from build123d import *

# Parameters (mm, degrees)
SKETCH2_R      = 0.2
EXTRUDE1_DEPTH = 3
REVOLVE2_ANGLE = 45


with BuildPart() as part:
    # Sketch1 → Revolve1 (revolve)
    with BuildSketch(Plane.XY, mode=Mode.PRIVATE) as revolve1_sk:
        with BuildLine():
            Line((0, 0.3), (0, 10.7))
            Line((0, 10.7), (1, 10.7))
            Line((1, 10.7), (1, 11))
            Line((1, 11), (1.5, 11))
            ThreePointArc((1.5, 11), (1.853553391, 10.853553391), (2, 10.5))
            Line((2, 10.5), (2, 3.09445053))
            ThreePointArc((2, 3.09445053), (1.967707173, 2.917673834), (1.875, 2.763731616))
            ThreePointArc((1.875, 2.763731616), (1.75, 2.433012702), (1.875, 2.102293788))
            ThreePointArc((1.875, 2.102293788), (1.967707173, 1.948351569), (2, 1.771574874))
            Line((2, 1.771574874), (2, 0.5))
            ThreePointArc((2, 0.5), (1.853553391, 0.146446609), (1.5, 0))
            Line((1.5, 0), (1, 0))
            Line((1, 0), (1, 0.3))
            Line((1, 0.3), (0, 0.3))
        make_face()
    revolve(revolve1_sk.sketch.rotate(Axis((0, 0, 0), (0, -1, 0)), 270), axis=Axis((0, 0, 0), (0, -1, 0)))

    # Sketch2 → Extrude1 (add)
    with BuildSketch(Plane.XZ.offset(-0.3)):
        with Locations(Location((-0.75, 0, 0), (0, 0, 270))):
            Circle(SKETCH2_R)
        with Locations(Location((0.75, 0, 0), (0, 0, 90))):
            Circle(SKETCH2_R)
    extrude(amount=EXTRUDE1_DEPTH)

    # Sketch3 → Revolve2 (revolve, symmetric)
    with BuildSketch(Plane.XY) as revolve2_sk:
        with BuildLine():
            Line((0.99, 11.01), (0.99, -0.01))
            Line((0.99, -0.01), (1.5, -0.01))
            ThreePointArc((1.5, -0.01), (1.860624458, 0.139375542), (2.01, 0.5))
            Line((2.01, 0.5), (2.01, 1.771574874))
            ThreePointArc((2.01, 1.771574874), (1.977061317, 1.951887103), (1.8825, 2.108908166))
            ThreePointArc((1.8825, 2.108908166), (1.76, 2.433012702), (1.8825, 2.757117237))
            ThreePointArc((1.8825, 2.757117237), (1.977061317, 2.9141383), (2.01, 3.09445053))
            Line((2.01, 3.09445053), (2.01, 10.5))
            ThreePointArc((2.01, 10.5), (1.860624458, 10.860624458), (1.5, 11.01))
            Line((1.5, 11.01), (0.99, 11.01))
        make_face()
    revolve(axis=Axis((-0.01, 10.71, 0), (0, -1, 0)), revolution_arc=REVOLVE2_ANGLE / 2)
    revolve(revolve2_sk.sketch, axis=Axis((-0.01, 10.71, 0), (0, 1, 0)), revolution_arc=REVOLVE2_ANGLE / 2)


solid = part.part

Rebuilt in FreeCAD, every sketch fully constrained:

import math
import FreeCAD as App
import Part
import Sketcher
Q = App.Units.Quantity

doc = App.newDocument("Part")
body = doc.addObject("PartDesign::Body", "Body")

# Sketch on XY plane
sketch1 = body.newObject("Sketcher::SketchObject", "Sketch")
sketch1.AttachmentSupport = (doc.getObject("XY_Plane"), [""])
sketch1.MapMode = "FlatFace"
sketch1.addGeometry([
    Part.LineSegment(App.Vector(0, 10.7, 0), App.Vector(0, 0.3, 0)),  # 0
    Part.LineSegment(App.Vector(0, 0.3, 0), App.Vector(1, 0.3, 0)),  # 1
    Part.LineSegment(App.Vector(1, 0.3, 0), App.Vector(1, 0, 0)),  # 2
    Part.LineSegment(App.Vector(1, 0, 0), App.Vector(1.5, 0, 0)),  # 3
    Part.ArcOfCircle(Part.Circle(App.Vector(1.5, 0.5, 0), App.Vector(0, 0, 1), 0.5), math.radians(-90), math.radians(0)),  # 4
    Part.LineSegment(App.Vector(2, 0.5, 0), App.Vector(2, 1.77, 0)),  # 5
    Part.ArcOfCircle(Part.Circle(App.Vector(1.5, 1.77, 0), App.Vector(0, 0, 1), 0.5), math.radians(0), math.radians(41)),  # 6
    Part.ArcOfCircle(Part.Circle(App.Vector(2.25, 2.43, 0), App.Vector(0, 0, 1), 0.5), math.radians(139), math.radians(221)),  # 7
    Part.ArcOfCircle(Part.Circle(App.Vector(1.5, 3.09, 0), App.Vector(0, 0, 1), 0.5), math.radians(-41), math.radians(0)),  # 8
    Part.LineSegment(App.Vector(2, 3.09, 0), App.Vector(2, 10.5, 0)),  # 9
    Part.ArcOfCircle(Part.Circle(App.Vector(1.5, 10.5, 0), App.Vector(0, 0, 1), 0.5), math.radians(0), math.radians(90)),  # 10
    Part.LineSegment(App.Vector(1.5, 11, 0), App.Vector(1, 11, 0)),  # 11
    Part.LineSegment(App.Vector(1, 11, 0), App.Vector(1, 10.7, 0)),  # 12
    Part.LineSegment(App.Vector(1, 10.7, 0), App.Vector(0, 10.7, 0)),  # 13
], False)
sketch1.addConstraint([
    Sketcher.Constraint("Coincident", 0, 2, 1, 1),
    Sketcher.Constraint("Coincident", 1, 2, 2, 1),
    Sketcher.Constraint("Coincident", 2, 2, 3, 1),
    Sketcher.Constraint("Tangent", 3, 2, 4, 1),
    Sketcher.Constraint("Tangent", 4, 2, 5, 1),
    Sketcher.Constraint("Tangent", 5, 2, 6, 1),
    Sketcher.Constraint("Tangent", 6, 2, 7, 2),
    Sketcher.Constraint("Tangent", 7, 1, 8, 1),
    Sketcher.Constraint("Tangent", 8, 2, 9, 1),
    Sketcher.Constraint("Tangent", 9, 2, 10, 1),
    Sketcher.Constraint("Tangent", 10, 2, 11, 1),
    Sketcher.Constraint("Coincident", 11, 2, 12, 1),
    Sketcher.Constraint("Coincident", 12, 2, 13, 1),
    Sketcher.Constraint("Coincident", 13, 2, 0, 1),
    Sketcher.Constraint("Vertical", 0),
    Sketcher.Constraint("Horizontal", 1),
    Sketcher.Constraint("Vertical", 2),
    Sketcher.Constraint("Horizontal", 3),
    Sketcher.Constraint("Vertical", 5),
    Sketcher.Constraint("Vertical", 9),
    Sketcher.Constraint("Horizontal", 11),
    Sketcher.Constraint("Vertical", 12),
    Sketcher.Constraint("Horizontal", 13),
    Sketcher.Constraint("Equal", 4, 6),
    Sketcher.Constraint("Equal", 6, 7),
    Sketcher.Constraint("Equal", 7, 8),
    Sketcher.Constraint("Equal", 8, 10),
    Sketcher.Constraint("PointOnObject", 0, 2, -2),
    Sketcher.Constraint("PointOnObject", 2, 2, -1),
    Sketcher.Constraint("Vertical", 6, 3, 8, 3),
    Sketcher.Constraint("Vertical", 2, 2, 11, 2),
    Sketcher.Constraint("Equal", 2, 12),
    Sketcher.Constraint("Radius", 4, Q("0.5 mm")),
    Sketcher.Constraint("DistanceX", 1, 1, 1, 2, Q("1 mm")),
    Sketcher.Constraint("DistanceX", 3, 1, 3, 2, Q("0.5 mm")),
    Sketcher.Constraint("DistanceY", 0, 2, 0, 1, Q("10.4 mm")),
    Sketcher.Constraint("DistanceY", 2, 2, 2, 1, Q("0.3 mm")),
    Sketcher.Constraint("DistanceX", -1, 1, 7, 3, Q("2.25 mm")),
    Sketcher.Constraint("DistanceY", 9, 1, 9, 2, Q("7.405549 mm")),
])
revolution = body.newObject("PartDesign::Revolution", "Revolution")
revolution.Profile = sketch1
revolution.ReferenceAxis = (sketch1, ["V_Axis"])
revolution.Angle = 360

# Sketch on XZ plane
sketch2 = body.newObject("Sketcher::SketchObject", "Sketch001")
sketch2.AttachmentSupport = (doc.getObject("XZ_Plane"), [""])
sketch2.MapMode = "FlatFace"
sketch2.AttachmentOffset = App.Placement(App.Vector(0, 0, -0.3), App.Rotation())
sketch2.addGeometry([
    Part.Circle(App.Vector(-0.75, 0, 0), App.Vector(0, 0, 1), 0.2),
    Part.Circle(App.Vector(0.75, 0, 0), App.Vector(0, 0, 1), 0.2),
], False)
sketch2.addConstraint([
    Sketcher.Constraint("Equal", 0, 1),
    Sketcher.Constraint("Symmetric", 0, 3, 1, 3, -1, 1),
    Sketcher.Constraint("PointOnObject", 0, 3, -1),
    Sketcher.Constraint("Diameter", 0, Q("0.4 mm")),
    Sketcher.Constraint("DistanceX", 0, 3, 1, 3, Q("1.5 mm")),
])
pad1 = body.newObject("PartDesign::Pad", "Pad")
pad1.Profile = sketch2
pad1.Length = 3

# Sketch on XY plane
sketch3 = body.newObject("Sketcher::SketchObject", "Sketch002")
sketch3.AttachmentSupport = (doc.getObject("XY_Plane"), [""])
sketch3.MapMode = "FlatFace"
sketch3.addGeometry([
    Part.LineSegment(App.Vector(0.99, 11.01, 0), App.Vector(0.99, -0.01, 0)),  # 0
    Part.LineSegment(App.Vector(0.99, -0.01, 0), App.Vector(1.5, -0.01, 0)),  # 1
    Part.ArcOfCircle(Part.Circle(App.Vector(1.5, 0.5, 0), App.Vector(0, 0, 1), 0.51), math.radians(-90), math.radians(0)),  # 2
    Part.LineSegment(App.Vector(2.01, 0.5, 0), App.Vector(2.01, 1.77, 0)),  # 3
    Part.ArcOfCircle(Part.Circle(App.Vector(1.5, 1.77, 0), App.Vector(0, 0, 1), 0.51), math.radians(0), math.radians(41)),  # 4
    Part.ArcOfCircle(Part.Circle(App.Vector(2.25, 2.43, 0), App.Vector(0, 0, 1), 0.49), math.radians(139), math.radians(221)),  # 5
    Part.ArcOfCircle(Part.Circle(App.Vector(1.5, 3.09, 0), App.Vector(0, 0, 1), 0.51), math.radians(-41), math.radians(0)),  # 6
    Part.LineSegment(App.Vector(2.01, 3.09, 0), App.Vector(2.01, 10.5, 0)),  # 7
    Part.ArcOfCircle(Part.Circle(App.Vector(1.5, 10.5, 0), App.Vector(0, 0, 1), 0.51), math.radians(0), math.radians(90)),  # 8
    Part.LineSegment(App.Vector(1.5, 11.01, 0), App.Vector(0.99, 11.01, 0)),  # 9
], False)
sketch3.addGeometry(Part.LineSegment(App.Vector(-0.01, 11.01, 0), App.Vector(-0.01, -0.01, 0)), True)  # axis
sketch3.addConstraint([
    Sketcher.Constraint("Coincident", 0, 2, 1, 1),
    Sketcher.Constraint("Tangent", 1, 2, 2, 1),
    Sketcher.Constraint("Tangent", 2, 2, 3, 1),
    Sketcher.Constraint("Tangent", 3, 2, 4, 1),
    Sketcher.Constraint("Tangent", 4, 2, 5, 2),
    Sketcher.Constraint("Tangent", 5, 1, 6, 1),
    Sketcher.Constraint("Tangent", 6, 2, 7, 1),
    Sketcher.Constraint("Tangent", 7, 2, 8, 1),
    Sketcher.Constraint("Tangent", 8, 2, 9, 1),
    Sketcher.Constraint("Coincident", 9, 2, 0, 1),
    Sketcher.Constraint("Vertical", 0),
    Sketcher.Constraint("Horizontal", 1),
    Sketcher.Constraint("Vertical", 3),
    Sketcher.Constraint("Vertical", 7),
    Sketcher.Constraint("Horizontal", 9),
    Sketcher.Constraint("Vertical", 10),
    Sketcher.Constraint("Equal", 2, 4),
    Sketcher.Constraint("Equal", 4, 6),
    Sketcher.Constraint("Equal", 6, 8),
    Sketcher.Constraint("Horizontal", 9, 2, 10, 1),
    Sketcher.Constraint("Horizontal", 1, 2, 10, 2),
    Sketcher.Constraint("Vertical", 4, 3, 6, 3),
    Sketcher.Constraint("Radius", 2, Q("0.51 mm")),
    Sketcher.Constraint("Radius", 5, Q("0.49 mm")),
    Sketcher.Constraint("DistanceY", 2, 3, 8, 3, Q("10 mm")),
    Sketcher.Constraint("DistanceX", 10, 1, 9, 2, Q("1 mm")),
    Sketcher.Constraint("DistanceX", 1, 1, 1, 2, Q("0.51 mm")),
    Sketcher.Constraint("DistanceX", -1, 1, 2, 3, Q("1.5 mm")),
    Sketcher.Constraint("DistanceY", -1, 1, 2, 3, Q("0.5 mm")),
    Sketcher.Constraint("DistanceX", -1, 1, 5, 3, Q("2.25 mm")),
    Sketcher.Constraint("DistanceY", 7, 1, 7, 2, Q("7.405549 mm")),
])
revolution2 = body.newObject("PartDesign::Revolution", "Revolution001")
revolution2.Profile = sketch3
revolution2.ReferenceAxis = (sketch3, ["Axis0"])
revolution2.Angle = 22.5

# Sketch on XY plane
sketch4 = body.newObject("Sketcher::SketchObject", "Sketch003")
sketch4.AttachmentSupport = (doc.getObject("XY_Plane"), [""])
sketch4.MapMode = "FlatFace"
sketch4.addGeometry([
    Part.LineSegment(App.Vector(0.99, 11.01, 0), App.Vector(0.99, -0.01, 0)),  # 0
    Part.LineSegment(App.Vector(0.99, -0.01, 0), App.Vector(1.5, -0.01, 0)),  # 1
    Part.ArcOfCircle(Part.Circle(App.Vector(1.5, 0.5, 0), App.Vector(0, 0, 1), 0.51), math.radians(-90), math.radians(0)),  # 2
    Part.LineSegment(App.Vector(2.01, 0.5, 0), App.Vector(2.01, 1.77, 0)),  # 3
    Part.ArcOfCircle(Part.Circle(App.Vector(1.5, 1.77, 0), App.Vector(0, 0, 1), 0.51), math.radians(0), math.radians(41)),  # 4
    Part.ArcOfCircle(Part.Circle(App.Vector(2.25, 2.43, 0), App.Vector(0, 0, 1), 0.49), math.radians(139), math.radians(221)),  # 5
    Part.ArcOfCircle(Part.Circle(App.Vector(1.5, 3.09, 0), App.Vector(0, 0, 1), 0.51), math.radians(-41), math.radians(0)),  # 6
    Part.LineSegment(App.Vector(2.01, 3.09, 0), App.Vector(2.01, 10.5, 0)),  # 7
    Part.ArcOfCircle(Part.Circle(App.Vector(1.5, 10.5, 0), App.Vector(0, 0, 1), 0.51), math.radians(0), math.radians(90)),  # 8
    Part.LineSegment(App.Vector(1.5, 11.01, 0), App.Vector(0.99, 11.01, 0)),  # 9
], False)
sketch4.addGeometry(Part.LineSegment(App.Vector(-0.01, -0.01, 0), App.Vector(-0.01, 11.01, 0)), True)  # axis
sketch4.addConstraint([
    Sketcher.Constraint("Coincident", 0, 2, 1, 1),
    Sketcher.Constraint("Tangent", 1, 2, 2, 1),
    Sketcher.Constraint("Tangent", 2, 2, 3, 1),
    Sketcher.Constraint("Tangent", 3, 2, 4, 1),
    Sketcher.Constraint("Tangent", 4, 2, 5, 2),
    Sketcher.Constraint("Tangent", 5, 1, 6, 1),
    Sketcher.Constraint("Tangent", 6, 2, 7, 1),
    Sketcher.Constraint("Tangent", 7, 2, 8, 1),
    Sketcher.Constraint("Tangent", 8, 2, 9, 1),
    Sketcher.Constraint("Coincident", 9, 2, 0, 1),
    Sketcher.Constraint("Vertical", 0),
    Sketcher.Constraint("Horizontal", 1),
    Sketcher.Constraint("Vertical", 3),
    Sketcher.Constraint("Vertical", 7),
    Sketcher.Constraint("Horizontal", 9),
    Sketcher.Constraint("Vertical", 10),
    Sketcher.Constraint("Equal", 2, 4),
    Sketcher.Constraint("Equal", 4, 6),
    Sketcher.Constraint("Equal", 6, 8),
    Sketcher.Constraint("Horizontal", 1, 2, 10, 1),
    Sketcher.Constraint("Horizontal", 9, 2, 10, 2),
    Sketcher.Constraint("Vertical", 4, 3, 6, 3),
    Sketcher.Constraint("Radius", 2, Q("0.51 mm")),
    Sketcher.Constraint("Radius", 5, Q("0.49 mm")),
    Sketcher.Constraint("DistanceY", 2, 3, 8, 3, Q("10 mm")),
    Sketcher.Constraint("DistanceX", 10, 1, 0, 2, Q("1 mm")),
    Sketcher.Constraint("DistanceX", 1, 1, 1, 2, Q("0.51 mm")),
    Sketcher.Constraint("DistanceX", -1, 1, 2, 3, Q("1.5 mm")),
    Sketcher.Constraint("DistanceY", -1, 1, 2, 3, Q("0.5 mm")),
    Sketcher.Constraint("DistanceX", -1, 1, 5, 3, Q("2.25 mm")),
    Sketcher.Constraint("DistanceY", 7, 1, 7, 2, Q("7.405549 mm")),
])
revolution3 = body.newObject("PartDesign::Revolution", "Revolution002")
revolution3.Profile = sketch4
revolution3.ReferenceAxis = (sketch4, ["Axis0"])
revolution3.Angle = 22.5

doc.recompute()
